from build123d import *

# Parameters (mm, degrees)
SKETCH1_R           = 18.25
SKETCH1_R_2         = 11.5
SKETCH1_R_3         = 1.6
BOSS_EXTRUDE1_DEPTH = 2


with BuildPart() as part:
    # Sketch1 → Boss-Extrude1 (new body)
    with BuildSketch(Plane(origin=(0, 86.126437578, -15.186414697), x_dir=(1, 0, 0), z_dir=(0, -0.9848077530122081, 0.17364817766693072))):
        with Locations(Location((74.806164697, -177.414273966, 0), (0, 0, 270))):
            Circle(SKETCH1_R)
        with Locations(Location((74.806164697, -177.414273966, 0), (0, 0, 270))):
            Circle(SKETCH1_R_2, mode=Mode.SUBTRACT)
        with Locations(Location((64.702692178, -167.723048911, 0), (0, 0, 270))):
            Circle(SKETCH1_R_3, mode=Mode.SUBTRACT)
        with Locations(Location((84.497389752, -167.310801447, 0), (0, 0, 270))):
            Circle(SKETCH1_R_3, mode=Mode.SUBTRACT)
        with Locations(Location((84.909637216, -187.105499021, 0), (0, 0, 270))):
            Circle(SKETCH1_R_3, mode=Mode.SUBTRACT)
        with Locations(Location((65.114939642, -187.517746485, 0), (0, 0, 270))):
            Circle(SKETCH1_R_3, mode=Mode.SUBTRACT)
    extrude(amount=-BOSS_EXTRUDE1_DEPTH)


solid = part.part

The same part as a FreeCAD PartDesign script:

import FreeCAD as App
import Part
import Sketcher
from FreeCAD import Vector

doc = App.newDocument("Part")
body = doc.addObject("PartDesign::Body", "Body")

# Sketch on an angled plane
sketch1 = body.newObject("Sketcher::SketchObject", "Sketch")
sketch1.Placement = App.Placement(Vector(0, 86.126438, -15.186415), App.Rotation(Vector(1, 0, 0), Vector(0, 0.173648178, 0.984807753), Vector(0, -0.984807753, 0.173648178), "ZXY"))
sketch1.addGeometry([
    Part.Circle(Vector(74.8, -177.4, 0), Vector(0, 0, 1), 18.2),  # 0
    Part.Circle(Vector(64.7, -167.7, 0), Vector(0, 0, 1), 1.6),  # 1
    Part.Circle(Vector(65.1, -187.5, 0), Vector(0, 0, 1), 1.6),  # 2
    Part.Circle(Vector(74.8, -177.4, 0), Vector(0, 0, 1), 11.5),  # 3
    Part.Circle(Vector(84.5, -167.3, 0), Vector(0, 0, 1), 1.6),  # 4
    Part.Circle(Vector(84.9, -187.1, 0), Vector(0, 0, 1), 1.6),  # 5
], False)
sketch1.addConstraint([
    Sketcher.Constraint("Coincident", 3, 3, 0, 3),
    Sketcher.Constraint("Equal", 1, 2),
    Sketcher.Constraint("Equal", 2, 4),
    Sketcher.Constraint("Equal", 4, 5),
    Sketcher.Constraint("Diameter", 3, 23.0),
    Sketcher.Constraint("Diameter", 0, 36.5),
    Sketcher.Constraint("Diameter", 1, 3.2),
    Sketcher.Constraint("DistanceY", 4, 3, -1, 1, 167.310801),
    Sketcher.Constraint("DistanceY", 5, 3, -1, 1, 187.105499),
    Sketcher.Constraint("DistanceY", 1, 3, -1, 1, 167.723049),
    Sketcher.Constraint("DistanceX", -1, 1, 2, 3, 65.11494),
    Sketcher.Constraint("DistanceX", -1, 1, 4, 3, 84.49739),
    Sketcher.Constraint("DistanceX", -1, 1, 0, 3, 74.806165),
    Sketcher.Constraint("DistanceY", 0, 3, -1, 1, 177.414274),
    Sketcher.Constraint("DistanceX", -1, 1, 1, 3, 64.702692),
    Sketcher.Constraint("DistanceY", 2, 3, -1, 1, 187.517747),
    Sketcher.Constraint("DistanceX", -1, 1, 5, 3, 84.909637),
])
pad1 = body.newObject("PartDesign::Pad", "Pad")
pad1.Profile = sketch1
pad1.Length = 2
pad1.Reversed = True

doc.recompute()
